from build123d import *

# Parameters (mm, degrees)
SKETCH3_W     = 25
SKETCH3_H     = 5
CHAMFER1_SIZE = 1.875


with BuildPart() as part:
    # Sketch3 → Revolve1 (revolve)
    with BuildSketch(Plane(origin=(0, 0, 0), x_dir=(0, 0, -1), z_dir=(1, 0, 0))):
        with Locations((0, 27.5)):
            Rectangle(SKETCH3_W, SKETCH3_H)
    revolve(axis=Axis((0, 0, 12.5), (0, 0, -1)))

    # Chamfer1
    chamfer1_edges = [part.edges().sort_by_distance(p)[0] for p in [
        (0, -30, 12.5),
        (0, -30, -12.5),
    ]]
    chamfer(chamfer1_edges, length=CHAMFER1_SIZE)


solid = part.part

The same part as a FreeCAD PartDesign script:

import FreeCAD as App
import Part
import Sketcher
from FreeCAD import Vector
Q = App.Units.Quantity


def edges_at(feature, points):
    """Names of the edges that pass closest to the given points."""
    edges = feature.Shape.Edges
    near = lambda p: min(range(len(edges)), key=lambda i: edges[i].distToShape(Part.Vertex(*p))[0])
    return sorted({f"Edge{near(p) + 1}" for p in points})

doc = App.newDocument("Part")
body = doc.addObject("PartDesign::Body", "Body")

# Sketch on YZ plane
sketch1 = body.newObject("Sketcher::SketchObject", "Sketch")
sketch1.AttachmentSupport = (doc.getObject("YZ_Plane"), [""])
sketch1.MapMode = "FlatFace"
sketch1.addGeometry(Part.LineSegment(Vector(30, 12, 0), Vector(25, 12, 0)), False)
sketch1.addGeometry(Part.LineSegment(Vector(25, 12, 0), Vector(25, -12, 0)), False)
sketch1.addGeometry(Part.LineSegment(Vector(25, -12, 0), Vector(30, -12, 0)), False)
sketch1.addGeometry(Part.LineSegment(Vector(30, -12, 0), Vector(30, 12, 0)), False)
sketch1.addConstraint(Sketcher.Constraint("Coincident", 0, 2, 1, 1))
sketch1.addConstraint(Sketcher.Constraint("Coincident", 1, 2, 2, 1))
sketch1.addConstraint(Sketcher.Constraint("Coincident", 2, 2, 3, 1))
sketch1.addConstraint(Sketcher.Constraint("Coincident", 3, 2, 0, 1))
sketch1.addConstraint(Sketcher.Constraint("Horizontal", 0))
sketch1.addConstraint(Sketcher.Constraint("Vertical", 1))
sketch1.addConstraint(Sketcher.Constraint("Horizontal", 2))
sketch1.addConstraint(Sketcher.Constraint("Vertical", 3))
sketch1.addConstraint(Sketcher.Constraint("DistanceX", 0, 2, 0, 1, Q("5 mm")))
sketch1.addConstraint(Sketcher.Constraint("DistanceY", 1, 2, 1, 1, Q("25 mm")))
sketch1.addConstraint(Sketcher.Constraint("DistanceX", -1, 1, 0, 2, Q("25 mm")))
sketch1.addConstraint(Sketcher.Constraint("DistanceY", -1, 1, 0, 2, Q("12.5 mm")))
revolution = body.newObject("PartDesign::Revolution", "Revolution")
revolution.Profile = sketch1
revolution.ReferenceAxis = (sketch1, ["V_Axis"])
revolution.Angle = 360
doc.recompute()

chamfer = body.newObject("PartDesign::Chamfer", "Chamfer")
chamfer.Base = (revolution, edges_at(revolution, [(0, -30, 12.5), (0, -30, -12.5)]))
chamfer.Size = 1.875

doc.recompute()
